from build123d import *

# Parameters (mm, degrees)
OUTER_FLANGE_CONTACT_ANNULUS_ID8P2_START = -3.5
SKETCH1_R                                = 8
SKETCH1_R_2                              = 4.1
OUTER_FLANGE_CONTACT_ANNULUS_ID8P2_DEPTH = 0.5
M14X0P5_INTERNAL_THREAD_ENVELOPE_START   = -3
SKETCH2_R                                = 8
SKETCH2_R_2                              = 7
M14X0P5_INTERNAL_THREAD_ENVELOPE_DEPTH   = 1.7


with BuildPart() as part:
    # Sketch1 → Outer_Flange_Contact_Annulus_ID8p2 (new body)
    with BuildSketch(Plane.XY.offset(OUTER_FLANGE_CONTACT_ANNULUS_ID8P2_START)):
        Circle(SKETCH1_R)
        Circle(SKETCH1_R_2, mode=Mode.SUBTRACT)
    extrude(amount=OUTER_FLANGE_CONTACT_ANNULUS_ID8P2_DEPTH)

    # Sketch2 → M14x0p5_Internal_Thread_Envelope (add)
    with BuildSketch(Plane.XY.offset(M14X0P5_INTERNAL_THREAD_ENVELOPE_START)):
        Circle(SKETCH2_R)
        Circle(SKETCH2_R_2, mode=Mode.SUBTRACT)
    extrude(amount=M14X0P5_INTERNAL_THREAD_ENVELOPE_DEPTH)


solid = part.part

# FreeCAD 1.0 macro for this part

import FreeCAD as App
import Part
import Sketcher
from FreeCAD import Vector
Q = App.Units.Quantity

doc = App.newDocument("Part")
body = doc.addObject("PartDesign::Body", "Body")

# Sketch on XY plane
sketch1 = body.newObject("Sketcher::SketchObject", "Sketch")
sketch1.AttachmentSupport = (doc.getObject("XY_Plane"), [""])
sketch1.MapMode = "FlatFace"
sketch1.AttachmentOffset = App.Placement(Vector(0, 0, -3.5), App.Rotation())
sketch1.addGeometry(Part.Circle(Vector(0, 0, 0), Vector(0, 0, 1), 8), False)
sketch1.addGeometry(Part.Circle(Vector(0, 0, 0), Vector(0, 0, 1), 4.1), False)
sketch1.addConstraint(Sketcher.Constraint("Coincident", 0, 3, -1, 1))
sketch1.addConstraint(Sketcher.Constraint("Coincident", 1, 3, -1, 1))
sketch1.addConstraint(Sketcher.Constraint("Diameter", 0, Q("16 mm")))
sketch1.addConstraint(Sketcher.Constraint("Diameter", 1, Q("8.2 mm")))
pad1 = body.newObject("PartDesign::Pad", "Pad")
pad1.Profile = sketch1
pad1.Length = 0.5

# Sketch on XY plane
sketch2 = body.newObject("Sketcher::SketchObject", "Sketch001")
sketch2.AttachmentSupport = (doc.getObject("XY_Plane"), [""])
sketch2.MapMode = "FlatFace"
sketch2.AttachmentOffset = App.Placement(Vector(0, 0, -3), App.Rotation())
sketch2.addGeometry(Part.Circle(Vector(0, 0, 0), Vector(0, 0, 1), 8), False)
sketch2.addGeometry(Part.Circle(Vector(0, 0, 0), Vector(0, 0, 1), 7), False)
sketch2.addConstraint(Sketcher.Constraint("Coincident", 0, 3, -1, 1))
sketch2.addConstraint(Sketcher.Constraint("Coincident", 1, 3, -1, 1))
sketch2.addConstraint(Sketcher.Constraint("Diameter", 0, Q("16 mm")))
sketch2.addConstraint(Sketcher.Constraint("Diameter", 1, Q("14 mm")))
pad2 = body.newObject("PartDesign::Pad", "Pad001")
pad2.Profile = sketch2
pad2.Length = 1.7

doc.recompute()
